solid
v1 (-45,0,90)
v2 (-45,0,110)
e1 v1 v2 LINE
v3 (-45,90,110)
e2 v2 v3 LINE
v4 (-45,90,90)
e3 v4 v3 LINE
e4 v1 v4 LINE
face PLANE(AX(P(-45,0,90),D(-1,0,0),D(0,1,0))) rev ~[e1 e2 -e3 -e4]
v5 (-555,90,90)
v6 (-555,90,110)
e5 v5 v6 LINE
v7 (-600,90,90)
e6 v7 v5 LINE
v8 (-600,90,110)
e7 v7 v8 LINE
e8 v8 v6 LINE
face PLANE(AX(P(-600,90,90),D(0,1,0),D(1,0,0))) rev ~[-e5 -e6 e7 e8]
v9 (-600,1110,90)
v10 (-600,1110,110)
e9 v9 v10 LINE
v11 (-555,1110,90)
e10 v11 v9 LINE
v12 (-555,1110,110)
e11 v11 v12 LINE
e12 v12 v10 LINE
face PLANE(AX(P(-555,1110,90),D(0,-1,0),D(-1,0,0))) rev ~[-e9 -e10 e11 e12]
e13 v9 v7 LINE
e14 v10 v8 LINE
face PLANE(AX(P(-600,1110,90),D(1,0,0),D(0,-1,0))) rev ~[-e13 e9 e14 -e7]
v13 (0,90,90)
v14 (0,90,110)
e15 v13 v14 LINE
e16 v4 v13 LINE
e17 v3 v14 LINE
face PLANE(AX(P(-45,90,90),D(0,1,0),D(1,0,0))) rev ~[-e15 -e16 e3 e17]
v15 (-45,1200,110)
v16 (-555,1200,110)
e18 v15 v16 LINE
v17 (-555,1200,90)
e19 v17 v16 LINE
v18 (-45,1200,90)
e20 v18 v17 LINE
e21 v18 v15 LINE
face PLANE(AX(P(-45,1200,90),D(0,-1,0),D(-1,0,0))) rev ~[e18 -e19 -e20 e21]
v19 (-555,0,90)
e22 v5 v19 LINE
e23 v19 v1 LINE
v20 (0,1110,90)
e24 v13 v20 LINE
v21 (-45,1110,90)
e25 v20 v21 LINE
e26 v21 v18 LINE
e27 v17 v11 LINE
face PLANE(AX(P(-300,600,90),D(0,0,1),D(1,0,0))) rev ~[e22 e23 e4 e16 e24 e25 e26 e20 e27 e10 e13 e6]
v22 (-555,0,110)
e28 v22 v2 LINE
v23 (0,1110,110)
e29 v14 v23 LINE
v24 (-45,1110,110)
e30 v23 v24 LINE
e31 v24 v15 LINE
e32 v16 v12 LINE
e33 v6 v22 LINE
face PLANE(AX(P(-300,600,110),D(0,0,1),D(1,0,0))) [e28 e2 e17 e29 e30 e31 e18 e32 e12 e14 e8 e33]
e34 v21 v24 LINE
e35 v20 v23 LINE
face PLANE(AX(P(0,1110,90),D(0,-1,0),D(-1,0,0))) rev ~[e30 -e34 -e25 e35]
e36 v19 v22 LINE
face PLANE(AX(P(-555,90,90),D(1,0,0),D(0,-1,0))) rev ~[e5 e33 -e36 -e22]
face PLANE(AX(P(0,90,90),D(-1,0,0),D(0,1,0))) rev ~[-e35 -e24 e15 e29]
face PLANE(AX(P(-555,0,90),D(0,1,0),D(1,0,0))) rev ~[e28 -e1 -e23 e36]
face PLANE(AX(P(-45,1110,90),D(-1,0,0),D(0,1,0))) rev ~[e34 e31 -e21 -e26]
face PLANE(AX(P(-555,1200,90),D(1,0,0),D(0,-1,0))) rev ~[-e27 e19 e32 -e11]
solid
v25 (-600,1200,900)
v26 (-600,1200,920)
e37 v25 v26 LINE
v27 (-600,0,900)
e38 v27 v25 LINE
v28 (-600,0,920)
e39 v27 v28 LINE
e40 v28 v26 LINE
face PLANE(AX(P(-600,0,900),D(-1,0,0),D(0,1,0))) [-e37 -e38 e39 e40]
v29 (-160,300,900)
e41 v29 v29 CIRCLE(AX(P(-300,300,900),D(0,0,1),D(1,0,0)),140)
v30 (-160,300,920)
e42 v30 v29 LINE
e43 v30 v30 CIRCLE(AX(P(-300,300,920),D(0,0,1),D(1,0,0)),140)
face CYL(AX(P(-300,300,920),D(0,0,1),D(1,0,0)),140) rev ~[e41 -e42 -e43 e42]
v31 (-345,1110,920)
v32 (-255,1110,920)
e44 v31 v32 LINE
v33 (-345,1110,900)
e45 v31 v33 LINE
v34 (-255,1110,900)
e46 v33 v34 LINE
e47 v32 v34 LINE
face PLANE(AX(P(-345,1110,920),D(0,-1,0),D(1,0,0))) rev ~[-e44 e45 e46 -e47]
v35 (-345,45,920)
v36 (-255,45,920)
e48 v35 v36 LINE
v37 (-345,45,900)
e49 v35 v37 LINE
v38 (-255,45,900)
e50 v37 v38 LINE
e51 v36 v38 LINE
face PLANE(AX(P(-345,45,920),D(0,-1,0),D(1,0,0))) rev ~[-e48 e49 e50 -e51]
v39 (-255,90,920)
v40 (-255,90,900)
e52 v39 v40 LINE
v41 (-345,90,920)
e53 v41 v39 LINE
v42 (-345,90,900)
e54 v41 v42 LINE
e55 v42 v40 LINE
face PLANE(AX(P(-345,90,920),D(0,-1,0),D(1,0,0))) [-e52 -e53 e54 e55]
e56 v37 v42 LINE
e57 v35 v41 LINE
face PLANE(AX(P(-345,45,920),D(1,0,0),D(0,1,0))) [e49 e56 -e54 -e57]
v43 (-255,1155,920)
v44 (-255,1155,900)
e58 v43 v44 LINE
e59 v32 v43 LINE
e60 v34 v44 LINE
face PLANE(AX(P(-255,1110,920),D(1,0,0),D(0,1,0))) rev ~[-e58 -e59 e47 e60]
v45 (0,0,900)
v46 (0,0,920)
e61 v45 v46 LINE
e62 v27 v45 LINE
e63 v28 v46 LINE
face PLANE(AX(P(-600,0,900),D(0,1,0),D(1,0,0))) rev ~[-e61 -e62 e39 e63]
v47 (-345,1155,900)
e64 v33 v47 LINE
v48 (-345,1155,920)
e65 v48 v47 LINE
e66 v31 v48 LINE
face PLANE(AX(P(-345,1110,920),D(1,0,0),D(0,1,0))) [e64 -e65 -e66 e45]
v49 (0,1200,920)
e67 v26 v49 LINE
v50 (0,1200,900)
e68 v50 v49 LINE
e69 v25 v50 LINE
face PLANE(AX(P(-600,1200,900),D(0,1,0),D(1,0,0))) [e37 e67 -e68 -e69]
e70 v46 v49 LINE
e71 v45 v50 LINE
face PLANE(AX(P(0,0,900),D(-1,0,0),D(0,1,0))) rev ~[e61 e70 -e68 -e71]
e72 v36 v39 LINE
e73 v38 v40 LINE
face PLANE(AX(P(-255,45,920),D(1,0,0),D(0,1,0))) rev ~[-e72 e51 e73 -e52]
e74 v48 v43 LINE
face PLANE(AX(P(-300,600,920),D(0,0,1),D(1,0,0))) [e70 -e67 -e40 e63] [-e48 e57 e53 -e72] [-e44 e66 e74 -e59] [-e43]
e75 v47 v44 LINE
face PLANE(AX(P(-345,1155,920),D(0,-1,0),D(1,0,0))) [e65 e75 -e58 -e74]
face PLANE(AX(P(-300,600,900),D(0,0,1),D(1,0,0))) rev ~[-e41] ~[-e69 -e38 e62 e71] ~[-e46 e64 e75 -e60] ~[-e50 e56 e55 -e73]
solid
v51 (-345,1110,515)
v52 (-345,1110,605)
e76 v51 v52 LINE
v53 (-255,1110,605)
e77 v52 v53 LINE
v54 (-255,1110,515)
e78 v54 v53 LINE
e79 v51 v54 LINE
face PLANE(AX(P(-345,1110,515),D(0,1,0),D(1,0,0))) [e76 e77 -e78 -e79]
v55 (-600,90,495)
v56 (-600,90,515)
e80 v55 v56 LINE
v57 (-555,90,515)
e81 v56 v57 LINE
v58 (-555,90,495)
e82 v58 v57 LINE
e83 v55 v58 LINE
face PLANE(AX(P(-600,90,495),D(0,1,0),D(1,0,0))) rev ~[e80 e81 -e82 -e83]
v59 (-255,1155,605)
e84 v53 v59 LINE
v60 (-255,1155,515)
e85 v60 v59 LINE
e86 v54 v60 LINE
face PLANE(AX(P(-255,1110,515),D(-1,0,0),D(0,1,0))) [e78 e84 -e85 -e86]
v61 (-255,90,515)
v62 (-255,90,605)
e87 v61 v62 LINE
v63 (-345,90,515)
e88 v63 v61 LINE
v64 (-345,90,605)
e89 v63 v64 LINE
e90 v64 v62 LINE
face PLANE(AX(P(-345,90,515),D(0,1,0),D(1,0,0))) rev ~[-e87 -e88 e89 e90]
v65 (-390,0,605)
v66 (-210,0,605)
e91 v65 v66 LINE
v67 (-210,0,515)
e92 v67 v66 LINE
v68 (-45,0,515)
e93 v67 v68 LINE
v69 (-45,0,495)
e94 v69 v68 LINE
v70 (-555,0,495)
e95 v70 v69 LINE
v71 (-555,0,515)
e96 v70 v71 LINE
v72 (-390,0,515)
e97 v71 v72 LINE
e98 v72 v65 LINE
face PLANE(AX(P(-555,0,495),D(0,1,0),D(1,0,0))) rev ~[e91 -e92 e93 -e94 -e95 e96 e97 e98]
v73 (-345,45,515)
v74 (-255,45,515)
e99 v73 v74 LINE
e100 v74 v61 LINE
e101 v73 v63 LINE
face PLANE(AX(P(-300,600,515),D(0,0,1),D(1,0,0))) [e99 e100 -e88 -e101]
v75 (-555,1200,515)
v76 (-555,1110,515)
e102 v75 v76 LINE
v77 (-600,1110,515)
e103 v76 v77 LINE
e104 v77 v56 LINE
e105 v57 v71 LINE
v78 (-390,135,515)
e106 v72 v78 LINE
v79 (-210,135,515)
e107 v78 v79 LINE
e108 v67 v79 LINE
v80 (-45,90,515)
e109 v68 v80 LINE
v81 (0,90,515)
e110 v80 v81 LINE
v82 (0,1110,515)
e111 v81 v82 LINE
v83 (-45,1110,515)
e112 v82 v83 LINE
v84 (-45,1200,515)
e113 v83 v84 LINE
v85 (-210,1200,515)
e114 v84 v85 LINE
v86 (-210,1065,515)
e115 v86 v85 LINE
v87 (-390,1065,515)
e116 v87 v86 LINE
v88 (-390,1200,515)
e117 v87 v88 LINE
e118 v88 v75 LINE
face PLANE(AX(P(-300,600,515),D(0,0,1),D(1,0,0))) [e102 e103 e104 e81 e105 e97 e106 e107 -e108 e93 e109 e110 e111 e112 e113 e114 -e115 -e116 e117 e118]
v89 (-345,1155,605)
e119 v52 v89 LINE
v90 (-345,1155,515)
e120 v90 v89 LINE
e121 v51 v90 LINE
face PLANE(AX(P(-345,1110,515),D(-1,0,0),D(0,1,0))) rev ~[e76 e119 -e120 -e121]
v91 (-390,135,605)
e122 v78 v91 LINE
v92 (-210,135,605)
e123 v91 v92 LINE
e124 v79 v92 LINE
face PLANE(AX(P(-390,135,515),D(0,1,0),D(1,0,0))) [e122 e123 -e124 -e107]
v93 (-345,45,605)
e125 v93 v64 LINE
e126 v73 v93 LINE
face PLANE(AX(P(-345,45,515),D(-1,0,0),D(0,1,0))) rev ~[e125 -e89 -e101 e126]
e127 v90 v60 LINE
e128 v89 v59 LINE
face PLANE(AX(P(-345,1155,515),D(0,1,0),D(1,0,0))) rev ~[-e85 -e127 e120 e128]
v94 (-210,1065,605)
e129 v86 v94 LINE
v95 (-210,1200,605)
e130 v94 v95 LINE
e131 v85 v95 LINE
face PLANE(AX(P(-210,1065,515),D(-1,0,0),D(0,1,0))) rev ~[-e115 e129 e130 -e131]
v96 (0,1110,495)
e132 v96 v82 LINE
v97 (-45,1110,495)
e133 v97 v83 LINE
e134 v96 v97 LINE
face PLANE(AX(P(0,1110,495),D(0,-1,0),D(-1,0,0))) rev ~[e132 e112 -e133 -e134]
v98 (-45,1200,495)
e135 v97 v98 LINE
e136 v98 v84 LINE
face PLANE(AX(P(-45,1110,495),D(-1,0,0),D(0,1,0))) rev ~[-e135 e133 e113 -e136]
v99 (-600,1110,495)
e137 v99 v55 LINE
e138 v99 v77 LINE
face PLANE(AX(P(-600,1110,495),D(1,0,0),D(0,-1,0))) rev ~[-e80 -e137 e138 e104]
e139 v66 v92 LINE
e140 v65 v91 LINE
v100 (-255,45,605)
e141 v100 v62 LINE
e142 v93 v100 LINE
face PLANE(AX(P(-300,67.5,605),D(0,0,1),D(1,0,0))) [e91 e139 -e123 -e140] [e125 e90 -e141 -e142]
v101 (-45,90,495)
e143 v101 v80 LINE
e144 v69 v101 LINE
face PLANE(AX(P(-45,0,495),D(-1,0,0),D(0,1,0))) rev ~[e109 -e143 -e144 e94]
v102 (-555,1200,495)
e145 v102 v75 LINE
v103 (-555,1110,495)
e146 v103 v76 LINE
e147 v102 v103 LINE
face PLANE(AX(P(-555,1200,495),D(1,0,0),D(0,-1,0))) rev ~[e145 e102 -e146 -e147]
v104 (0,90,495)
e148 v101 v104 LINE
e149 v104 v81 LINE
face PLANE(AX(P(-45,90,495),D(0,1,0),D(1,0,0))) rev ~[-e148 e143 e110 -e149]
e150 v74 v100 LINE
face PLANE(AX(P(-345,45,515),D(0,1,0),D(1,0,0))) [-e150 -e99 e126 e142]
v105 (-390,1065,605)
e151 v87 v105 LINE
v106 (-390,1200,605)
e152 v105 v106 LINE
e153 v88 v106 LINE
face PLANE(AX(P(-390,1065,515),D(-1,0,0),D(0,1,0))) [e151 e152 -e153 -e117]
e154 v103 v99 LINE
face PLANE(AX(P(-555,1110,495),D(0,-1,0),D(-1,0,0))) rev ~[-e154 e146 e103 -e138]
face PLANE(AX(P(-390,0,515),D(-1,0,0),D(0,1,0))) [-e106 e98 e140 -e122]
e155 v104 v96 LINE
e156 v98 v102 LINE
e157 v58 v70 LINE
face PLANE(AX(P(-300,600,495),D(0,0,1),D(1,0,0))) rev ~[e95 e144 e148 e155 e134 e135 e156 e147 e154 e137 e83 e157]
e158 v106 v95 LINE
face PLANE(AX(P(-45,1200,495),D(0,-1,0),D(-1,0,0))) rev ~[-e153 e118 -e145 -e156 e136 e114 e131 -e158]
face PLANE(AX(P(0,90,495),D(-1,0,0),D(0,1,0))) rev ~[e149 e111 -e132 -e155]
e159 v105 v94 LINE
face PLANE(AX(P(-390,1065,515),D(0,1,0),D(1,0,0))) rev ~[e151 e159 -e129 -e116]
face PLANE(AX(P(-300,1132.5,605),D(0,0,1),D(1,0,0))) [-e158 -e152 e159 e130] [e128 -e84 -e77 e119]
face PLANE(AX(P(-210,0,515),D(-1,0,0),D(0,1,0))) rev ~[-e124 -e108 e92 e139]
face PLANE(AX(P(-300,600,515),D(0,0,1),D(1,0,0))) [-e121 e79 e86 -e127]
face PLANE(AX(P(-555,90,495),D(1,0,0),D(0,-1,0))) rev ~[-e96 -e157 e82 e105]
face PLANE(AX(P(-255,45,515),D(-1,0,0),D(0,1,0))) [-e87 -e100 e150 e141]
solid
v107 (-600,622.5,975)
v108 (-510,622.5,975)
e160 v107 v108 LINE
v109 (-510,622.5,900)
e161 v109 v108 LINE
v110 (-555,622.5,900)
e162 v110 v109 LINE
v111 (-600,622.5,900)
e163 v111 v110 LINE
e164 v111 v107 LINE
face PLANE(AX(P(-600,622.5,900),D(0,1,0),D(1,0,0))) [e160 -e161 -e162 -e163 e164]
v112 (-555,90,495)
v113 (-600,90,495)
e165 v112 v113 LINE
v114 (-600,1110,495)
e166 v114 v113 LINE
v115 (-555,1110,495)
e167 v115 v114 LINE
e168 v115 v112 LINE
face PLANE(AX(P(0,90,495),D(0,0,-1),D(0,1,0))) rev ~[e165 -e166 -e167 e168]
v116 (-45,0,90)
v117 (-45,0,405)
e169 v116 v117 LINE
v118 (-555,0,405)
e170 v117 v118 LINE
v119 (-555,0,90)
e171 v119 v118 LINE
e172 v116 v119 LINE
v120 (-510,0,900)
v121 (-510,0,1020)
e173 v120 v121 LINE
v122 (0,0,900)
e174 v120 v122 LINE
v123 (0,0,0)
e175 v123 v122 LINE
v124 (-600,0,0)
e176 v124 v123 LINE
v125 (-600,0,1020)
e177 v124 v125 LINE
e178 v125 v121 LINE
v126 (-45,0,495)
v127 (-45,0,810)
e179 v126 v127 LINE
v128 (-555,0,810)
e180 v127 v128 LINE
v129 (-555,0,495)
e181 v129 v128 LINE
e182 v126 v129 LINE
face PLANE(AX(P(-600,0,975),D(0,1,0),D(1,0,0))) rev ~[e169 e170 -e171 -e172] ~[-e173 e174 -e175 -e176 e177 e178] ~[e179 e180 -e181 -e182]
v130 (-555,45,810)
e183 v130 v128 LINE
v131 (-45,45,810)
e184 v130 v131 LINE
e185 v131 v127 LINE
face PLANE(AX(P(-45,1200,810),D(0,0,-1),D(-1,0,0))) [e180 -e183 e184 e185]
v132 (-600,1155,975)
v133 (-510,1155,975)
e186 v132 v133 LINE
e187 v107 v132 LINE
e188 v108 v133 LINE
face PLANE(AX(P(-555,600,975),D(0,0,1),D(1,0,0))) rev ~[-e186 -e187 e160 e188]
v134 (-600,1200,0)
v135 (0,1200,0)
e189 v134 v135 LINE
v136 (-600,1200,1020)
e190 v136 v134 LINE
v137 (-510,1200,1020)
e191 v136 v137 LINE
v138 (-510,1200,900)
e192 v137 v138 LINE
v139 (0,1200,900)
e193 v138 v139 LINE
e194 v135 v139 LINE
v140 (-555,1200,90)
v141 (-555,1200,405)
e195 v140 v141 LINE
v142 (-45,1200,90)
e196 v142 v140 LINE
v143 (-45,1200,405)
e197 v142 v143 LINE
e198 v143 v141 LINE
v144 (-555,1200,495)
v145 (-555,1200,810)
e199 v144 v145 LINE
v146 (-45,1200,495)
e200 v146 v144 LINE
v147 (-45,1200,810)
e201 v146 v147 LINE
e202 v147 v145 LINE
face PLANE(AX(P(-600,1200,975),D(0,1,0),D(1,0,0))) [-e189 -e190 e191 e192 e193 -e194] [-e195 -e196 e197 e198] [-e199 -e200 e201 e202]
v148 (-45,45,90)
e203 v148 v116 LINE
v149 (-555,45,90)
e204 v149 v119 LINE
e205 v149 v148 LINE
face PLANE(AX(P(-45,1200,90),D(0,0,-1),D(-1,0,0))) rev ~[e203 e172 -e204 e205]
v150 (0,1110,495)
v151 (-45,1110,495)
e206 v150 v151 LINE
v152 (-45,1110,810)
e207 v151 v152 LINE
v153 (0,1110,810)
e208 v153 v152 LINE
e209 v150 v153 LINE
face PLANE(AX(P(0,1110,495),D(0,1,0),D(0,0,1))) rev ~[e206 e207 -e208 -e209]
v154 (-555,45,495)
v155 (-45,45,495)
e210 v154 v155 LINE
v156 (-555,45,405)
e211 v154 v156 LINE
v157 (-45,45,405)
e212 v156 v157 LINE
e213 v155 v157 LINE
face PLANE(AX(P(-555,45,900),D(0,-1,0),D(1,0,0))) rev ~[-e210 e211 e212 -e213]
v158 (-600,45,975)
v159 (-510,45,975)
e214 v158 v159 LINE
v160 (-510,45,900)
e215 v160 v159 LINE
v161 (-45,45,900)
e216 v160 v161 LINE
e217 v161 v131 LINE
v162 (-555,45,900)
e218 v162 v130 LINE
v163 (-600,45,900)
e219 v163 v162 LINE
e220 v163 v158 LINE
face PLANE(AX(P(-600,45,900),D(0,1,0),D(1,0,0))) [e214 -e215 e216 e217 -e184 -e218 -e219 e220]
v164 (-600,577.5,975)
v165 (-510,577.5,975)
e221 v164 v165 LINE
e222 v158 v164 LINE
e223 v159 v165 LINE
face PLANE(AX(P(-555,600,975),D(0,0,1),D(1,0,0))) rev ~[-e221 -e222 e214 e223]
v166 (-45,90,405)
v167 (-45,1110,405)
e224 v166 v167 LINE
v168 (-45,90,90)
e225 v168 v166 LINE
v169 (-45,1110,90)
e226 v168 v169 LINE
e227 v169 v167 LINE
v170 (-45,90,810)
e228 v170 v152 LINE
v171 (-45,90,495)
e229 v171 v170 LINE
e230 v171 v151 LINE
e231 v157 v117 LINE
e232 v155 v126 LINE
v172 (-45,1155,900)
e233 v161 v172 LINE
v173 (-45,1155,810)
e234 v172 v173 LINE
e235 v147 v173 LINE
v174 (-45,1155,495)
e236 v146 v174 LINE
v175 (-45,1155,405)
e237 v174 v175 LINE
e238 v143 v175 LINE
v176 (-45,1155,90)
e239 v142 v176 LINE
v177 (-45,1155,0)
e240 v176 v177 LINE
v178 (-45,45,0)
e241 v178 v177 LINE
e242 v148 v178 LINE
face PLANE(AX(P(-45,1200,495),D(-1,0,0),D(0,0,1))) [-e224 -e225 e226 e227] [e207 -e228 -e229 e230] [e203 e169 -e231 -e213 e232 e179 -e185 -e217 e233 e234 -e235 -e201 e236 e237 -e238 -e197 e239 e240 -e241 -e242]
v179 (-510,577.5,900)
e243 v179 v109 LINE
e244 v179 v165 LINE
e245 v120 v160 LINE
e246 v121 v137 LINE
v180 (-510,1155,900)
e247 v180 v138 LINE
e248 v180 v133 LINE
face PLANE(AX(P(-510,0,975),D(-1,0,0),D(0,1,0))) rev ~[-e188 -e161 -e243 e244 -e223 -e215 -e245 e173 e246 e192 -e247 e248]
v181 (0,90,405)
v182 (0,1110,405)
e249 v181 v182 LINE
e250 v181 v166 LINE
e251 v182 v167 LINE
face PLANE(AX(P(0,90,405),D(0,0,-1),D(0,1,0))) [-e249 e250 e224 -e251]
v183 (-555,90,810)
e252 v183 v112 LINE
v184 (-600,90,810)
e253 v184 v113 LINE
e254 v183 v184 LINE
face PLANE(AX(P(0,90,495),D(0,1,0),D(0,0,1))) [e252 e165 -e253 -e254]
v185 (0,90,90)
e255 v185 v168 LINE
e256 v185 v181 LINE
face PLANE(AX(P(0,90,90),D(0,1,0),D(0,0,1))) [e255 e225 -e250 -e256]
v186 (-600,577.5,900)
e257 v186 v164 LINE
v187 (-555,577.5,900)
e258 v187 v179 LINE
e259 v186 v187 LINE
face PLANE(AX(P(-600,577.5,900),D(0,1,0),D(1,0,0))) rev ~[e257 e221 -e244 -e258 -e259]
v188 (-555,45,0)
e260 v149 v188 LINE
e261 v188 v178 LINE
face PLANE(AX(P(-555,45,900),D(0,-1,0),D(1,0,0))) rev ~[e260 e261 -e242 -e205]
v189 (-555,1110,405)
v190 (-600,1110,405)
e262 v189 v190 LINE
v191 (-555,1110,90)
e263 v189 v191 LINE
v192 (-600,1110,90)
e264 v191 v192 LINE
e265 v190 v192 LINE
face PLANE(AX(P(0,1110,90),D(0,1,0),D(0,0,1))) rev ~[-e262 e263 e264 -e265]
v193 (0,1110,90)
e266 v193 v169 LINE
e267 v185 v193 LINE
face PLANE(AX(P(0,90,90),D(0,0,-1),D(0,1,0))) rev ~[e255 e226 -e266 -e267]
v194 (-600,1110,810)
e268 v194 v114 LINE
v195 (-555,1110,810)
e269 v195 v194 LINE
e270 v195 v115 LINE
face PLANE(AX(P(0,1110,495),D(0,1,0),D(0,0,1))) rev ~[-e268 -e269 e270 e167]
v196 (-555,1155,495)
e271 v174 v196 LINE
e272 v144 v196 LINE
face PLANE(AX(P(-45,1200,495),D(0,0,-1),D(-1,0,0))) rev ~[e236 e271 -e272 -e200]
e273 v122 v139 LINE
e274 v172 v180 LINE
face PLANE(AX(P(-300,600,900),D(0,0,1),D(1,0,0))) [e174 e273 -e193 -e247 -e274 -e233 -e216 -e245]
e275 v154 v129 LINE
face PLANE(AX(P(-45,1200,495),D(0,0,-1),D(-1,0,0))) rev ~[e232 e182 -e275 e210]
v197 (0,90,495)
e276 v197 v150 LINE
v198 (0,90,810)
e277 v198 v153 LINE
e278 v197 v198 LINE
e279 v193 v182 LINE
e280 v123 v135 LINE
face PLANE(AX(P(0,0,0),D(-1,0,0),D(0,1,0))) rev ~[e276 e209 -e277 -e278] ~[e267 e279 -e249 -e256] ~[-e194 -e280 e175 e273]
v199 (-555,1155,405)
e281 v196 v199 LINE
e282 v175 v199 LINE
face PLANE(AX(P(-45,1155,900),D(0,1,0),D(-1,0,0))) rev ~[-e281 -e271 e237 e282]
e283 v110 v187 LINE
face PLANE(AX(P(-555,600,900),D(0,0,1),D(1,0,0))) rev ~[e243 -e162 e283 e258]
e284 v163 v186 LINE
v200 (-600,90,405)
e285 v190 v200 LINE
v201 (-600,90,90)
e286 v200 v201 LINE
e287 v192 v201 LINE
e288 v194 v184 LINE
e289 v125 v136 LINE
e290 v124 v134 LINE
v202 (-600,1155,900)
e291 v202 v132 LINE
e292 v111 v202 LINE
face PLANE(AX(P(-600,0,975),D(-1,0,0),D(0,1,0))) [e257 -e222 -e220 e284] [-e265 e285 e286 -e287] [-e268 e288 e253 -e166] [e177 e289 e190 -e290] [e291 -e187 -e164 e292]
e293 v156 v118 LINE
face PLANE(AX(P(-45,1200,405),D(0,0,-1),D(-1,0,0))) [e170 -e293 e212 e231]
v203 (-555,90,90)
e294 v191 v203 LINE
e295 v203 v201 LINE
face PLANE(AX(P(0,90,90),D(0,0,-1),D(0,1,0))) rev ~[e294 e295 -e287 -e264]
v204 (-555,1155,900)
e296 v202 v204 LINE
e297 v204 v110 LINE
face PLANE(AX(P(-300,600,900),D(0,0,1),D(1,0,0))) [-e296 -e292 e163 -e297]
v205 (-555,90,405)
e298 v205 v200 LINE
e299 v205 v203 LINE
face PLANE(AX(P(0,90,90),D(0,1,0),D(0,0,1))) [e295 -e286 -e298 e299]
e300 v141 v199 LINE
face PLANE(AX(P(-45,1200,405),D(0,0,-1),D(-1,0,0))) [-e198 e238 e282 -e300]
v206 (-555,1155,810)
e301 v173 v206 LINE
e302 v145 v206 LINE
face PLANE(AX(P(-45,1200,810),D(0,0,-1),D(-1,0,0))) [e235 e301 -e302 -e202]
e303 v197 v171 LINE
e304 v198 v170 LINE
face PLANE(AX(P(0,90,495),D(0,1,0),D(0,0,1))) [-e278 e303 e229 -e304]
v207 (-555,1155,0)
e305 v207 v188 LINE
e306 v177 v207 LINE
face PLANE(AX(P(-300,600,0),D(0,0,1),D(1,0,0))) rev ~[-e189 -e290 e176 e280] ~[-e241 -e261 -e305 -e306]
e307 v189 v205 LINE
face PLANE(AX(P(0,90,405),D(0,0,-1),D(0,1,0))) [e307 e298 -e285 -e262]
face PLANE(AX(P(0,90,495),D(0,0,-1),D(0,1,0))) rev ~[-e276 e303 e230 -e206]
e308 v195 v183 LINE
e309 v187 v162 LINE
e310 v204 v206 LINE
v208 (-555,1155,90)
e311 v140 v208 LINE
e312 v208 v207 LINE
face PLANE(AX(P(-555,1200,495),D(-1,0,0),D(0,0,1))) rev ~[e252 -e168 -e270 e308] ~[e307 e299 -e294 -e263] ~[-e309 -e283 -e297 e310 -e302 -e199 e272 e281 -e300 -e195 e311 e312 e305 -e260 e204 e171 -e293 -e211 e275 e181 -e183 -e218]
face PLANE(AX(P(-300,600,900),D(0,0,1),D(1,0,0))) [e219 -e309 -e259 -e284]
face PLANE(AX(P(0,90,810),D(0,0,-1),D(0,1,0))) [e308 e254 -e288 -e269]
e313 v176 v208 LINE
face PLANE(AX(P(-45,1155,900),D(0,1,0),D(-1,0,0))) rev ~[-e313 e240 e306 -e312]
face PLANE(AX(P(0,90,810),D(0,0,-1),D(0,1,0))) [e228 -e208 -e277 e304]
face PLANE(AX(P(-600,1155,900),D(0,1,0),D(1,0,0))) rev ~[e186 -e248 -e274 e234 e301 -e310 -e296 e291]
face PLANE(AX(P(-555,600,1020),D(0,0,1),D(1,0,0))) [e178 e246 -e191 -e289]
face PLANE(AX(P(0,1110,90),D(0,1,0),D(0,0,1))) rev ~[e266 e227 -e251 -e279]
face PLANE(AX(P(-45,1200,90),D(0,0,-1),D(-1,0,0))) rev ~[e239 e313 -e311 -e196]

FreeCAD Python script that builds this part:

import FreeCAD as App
import Part
import Sketcher
from FreeCAD import Vector
Q = App.Units.Quantity

doc = App.newDocument("Part")
body = doc.addObject("PartDesign::Body", "Body")

sketch1 = doc.addObject("Sketcher::SketchObject", "Sketch")
body.addObject(sketch1)
sketch1.AttachmentSupport = (doc.XY_Plane, [""])
sketch1.MapMode = "FlatFace"
sketch1.addGeometry(Part.LineSegment(Vector(-600, 1200, 0), Vector(-600, 0, 0)), False)
sketch1.addGeometry(Part.LineSegment(Vector(-600, 0, 0), Vector(0, 0, 0)), False)
sketch1.addGeometry(Part.LineSegment(Vector(0, 0, 0), Vector(0, 1200, 0)), False)
sketch1.addGeometry(Part.LineSegment(Vector(0, 1200, 0), Vector(-600, 1200, 0)), False)
sketch1.addConstraint(Sketcher.Constraint("Coincident", 0, 2, 1, 1))
sketch1.addConstraint(Sketcher.Constraint("Coincident", 1, 2, 2, 1))
sketch1.addConstraint(Sketcher.Constraint("Coincident", 2, 2, 3, 1))
sketch1.addConstraint(Sketcher.Constraint("Coincident", 3, 2, 0, 1))
sketch1.addConstraint(Sketcher.Constraint("Vertical", 0))
sketch1.addConstraint(Sketcher.Constraint("Horizontal", 1))
sketch1.addConstraint(Sketcher.Constraint("Vertical", 2))
sketch1.addConstraint(Sketcher.Constraint("Horizontal", 3))
sketch1.addConstraint(Sketcher.Constraint("Coincident", 1, 2, -1, 1))
sketch1.addConstraint(Sketcher.Constraint("DistanceX", 1, 1, 1, 2, Q("600 mm")))
sketch1.addConstraint(Sketcher.Constraint("DistanceY", 0, 2, 0, 1, Q("1200 mm")))
pad1 = doc.addObject("PartDesign::Pad", "Pad")
body.addObject(pad1)
pad1.Profile = sketch1
pad1.Length = 900

sketch2 = doc.addObject("Sketcher::SketchObject", "Sketch001")
body.addObject(sketch2)
sketch2.AttachmentSupport = (doc.XY_Plane, [""])
sketch2.MapMode = "FlatFace"
sketch2.AttachmentOffset = App.Placement(Vector(0, 0, 900), App.Rotation())
sketch2.addGeometry(Part.LineSegment(Vector(-555, 45, 0), Vector(-45, 45, 0)), False)
sketch2.addGeometry(Part.LineSegment(Vector(-45, 45, 0), Vector(-45, 1155, 0)), False)
sketch2.addGeometry(Part.LineSegment(Vector(-45, 1155, 0), Vector(-555, 1155, 0)), False)
sketch2.addGeometry(Part.LineSegment(Vector(-555, 1155, 0), Vector(-555, 45, 0)), False)
sketch2.addConstraint(Sketcher.Constraint("Coincident", 0, 2, 1, 1))
sketch2.addConstraint(Sketcher.Constraint("Coincident", 1, 2, 2, 1))
sketch2.addConstraint(Sketcher.Constraint("Coincident", 2, 2, 3, 1))
sketch2.addConstraint(Sketcher.Constraint("Coincident", 3, 2, 0, 1))
sketch2.addConstraint(Sketcher.Constraint("Horizontal", 0))
sketch2.addConstraint(Sketcher.Constraint("Vertical", 1))
sketch2.addConstraint(Sketcher.Constraint("Horizontal", 2))
sketch2.addConstraint(Sketcher.Constraint("Vertical", 3))
sketch2.addConstraint(Sketcher.Constraint("DistanceX", 0, 1, 0, 2, Q("510 mm")))
sketch2.addConstraint(Sketcher.Constraint("DistanceY", 1, 1, 1, 2, Q("1110 mm")))
sketch2.addConstraint(Sketcher.Constraint("DistanceX", 0, 2, -1, 1, Q("45 mm")))
sketch2.addConstraint(Sketcher.Constraint("DistanceY", -1, 1, 0, 2, Q("45 mm")))
pocket1 = doc.addObject("PartDesign::Pocket", "Pocket")
body.addObject(pocket1)
pocket1.Profile = sketch2
pocket1.Type = "ThroughAll"

sketch3 = doc.addObject("Sketcher::SketchObject", "Sketch002")
body.addObject(sketch3)
sketch3.AttachmentSupport = (doc.YZ_Plane, [""])
sketch3.MapMode = "FlatFace"
sketch3.addGeometry(Part.LineSegment(Vector(90, 810, 0), Vector(90, 495, 0)), False)
sketch3.addGeometry(Part.LineSegment(Vector(90, 495, 0), Vector(1110, 495, 0)), False)
sketch3.addGeometry(Part.LineSegment(Vector(1110, 495, 0), Vector(1110, 810, 0)), False)
sketch3.addGeometry(Part.LineSegment(Vector(1110, 810, 0), Vector(90, 810, 0)), False)
sketch3.addGeometry(Part.LineSegment(Vector(90, 405, 0), Vector(90, 90, 0)), False)
sketch3.addGeometry(Part.LineSegment(Vector(90, 90, 0), Vector(1110, 90, 0)), False)
sketch3.addGeometry(Part.LineSegment(Vector(1110, 90, 0), Vector(1110, 405, 0)), False)
sketch3.addGeometry(Part.LineSegment(Vector(1110, 405, 0), Vector(90, 405, 0)), False)
sketch3.addConstraint(Sketcher.Constraint("Coincident", 0, 2, 1, 1))
sketch3.addConstraint(Sketcher.Constraint("Coincident", 1, 2, 2, 1))
sketch3.addConstraint(Sketcher.Constraint("Coincident", 2, 2, 3, 1))
sketch3.addConstraint(Sketcher.Constraint("Coincident", 3, 2, 0, 1))
sketch3.addConstraint(Sketcher.Constraint("Coincident", 4, 2, 5, 1))
sketch3.addConstraint(Sketcher.Constraint("Coincident", 5, 2, 6, 1))
sketch3.addConstraint(Sketcher.Constraint("Coincident", 6, 2, 7, 1))
sketch3.addConstraint(Sketcher.Constraint("Coincident", 7, 2, 4, 1))
sketch3.addConstraint(Sketcher.Constraint("Vertical", 0))
sketch3.addConstraint(Sketcher.Constraint("Horizontal", 1))
sketch3.addConstraint(Sketcher.Constraint("Vertical", 2))
sketch3.addConstraint(Sketcher.Constraint("Horizontal", 3))
sketch3.addConstraint(Sketcher.Constraint("Vertical", 4))
sketch3.addConstraint(Sketcher.Constraint("Horizontal", 5))
sketch3.addConstraint(Sketcher.Constraint("Vertical", 6))
sketch3.addConstraint(Sketcher.Constraint("Horizontal", 7))
sketch3.addConstraint(Sketcher.Constraint("Vertical", 3, 2, 4, 2))
sketch3.addConstraint(Sketcher.Constraint("Vertical", 2, 2, 5, 2))
sketch3.addConstraint(Sketcher.Constraint("Equal", 2, 4))
sketch3.addConstraint(Sketcher.Constraint("DistanceX", 1, 1, 1, 2, Q("1020 mm")))
sketch3.addConstraint(Sketcher.Constraint("DistanceY", 0, 2, 0, 1, Q("315 mm")))
sketch3.addConstraint(Sketcher.Constraint("DistanceX", -1, 1, 0, 2, Q("90 mm")))
sketch3.addConstraint(Sketcher.Constraint("DistanceY", -1, 1, 0, 2, Q("495 mm")))
sketch3.addConstraint(Sketcher.Constraint("DistanceY", -1, 1, 4, 2, Q("90 mm")))
pocket2 = doc.addObject("PartDesign::Pocket", "Pocket001")
body.addObject(pocket2)
pocket2.Profile = sketch3
pocket2.Type = "ThroughAll"

sketch4 = doc.addObject("Sketcher::SketchObject", "Sketch003")
body.addObject(sketch4)
sketch4.AttachmentSupport = (doc.XZ_Plane, [""])
sketch4.MapMode = "FlatFace"
sketch4.AttachmentOffset = App.Placement(Vector(0, 0, -1200), App.Rotation())
sketch4.addGeometry(Part.LineSegment(Vector(-45, 810, 0), Vector(-45, 495, 0)), False)
sketch4.addGeometry(Part.LineSegment(Vector(-45, 495, 0), Vector(-555, 495, 0)), False)
sketch4.addGeometry(Part.LineSegment(Vector(-555, 495, 0), Vector(-555, 810, 0)), False)
sketch4.addGeometry(Part.LineSegment(Vector(-555, 810, 0), Vector(-45, 810, 0)), False)
sketch4.addGeometry(Part.LineSegment(Vector(-45, 405, 0), Vector(-45, 90, 0)), False)
sketch4.addGeometry(Part.LineSegment(Vector(-45, 90, 0), Vector(-555, 90, 0)), False)
sketch4.addGeometry(Part.LineSegment(Vector(-555, 90, 0), Vector(-555, 405, 0)), False)
sketch4.addGeometry(Part.LineSegment(Vector(-555, 405, 0), Vector(-45, 405, 0)), False)
sketch4.addConstraint(Sketcher.Constraint("Coincident", 0, 2, 1, 1))
sketch4.addConstraint(Sketcher.Constraint("Coincident", 1, 2, 2, 1))
sketch4.addConstraint(Sketcher.Constraint("Coincident", 2, 2, 3, 1))
sketch4.addConstraint(Sketcher.Constraint("Coincident", 3, 2, 0, 1))
sketch4.addConstraint(Sketcher.Constraint("Coincident", 4, 2, 5, 1))
sketch4.addConstraint(Sketcher.Constraint("Coincident", 5, 2, 6, 1))
sketch4.addConstraint(Sketcher.Constraint("Coincident", 6, 2, 7, 1))
sketch4.addConstraint(Sketcher.Constraint("Coincident", 7, 2, 4, 1))
sketch4.addConstraint(Sketcher.Constraint("Vertical", 0))
sketch4.addConstraint(Sketcher.Constraint("Horizontal", 1))
sketch4.addConstraint(Sketcher.Constraint("Vertical", 2))
sketch4.addConstraint(Sketcher.Constraint("Horizontal", 3))
sketch4.addConstraint(Sketcher.Constraint("Vertical", 4))
sketch4.addConstraint(Sketcher.Constraint("Horizontal", 5))
sketch4.addConstraint(Sketcher.Constraint("Vertical", 6))
sketch4.addConstraint(Sketcher.Constraint("Horizontal", 7))
sketch4.addConstraint(Sketcher.Constraint("Vertical", 3, 2, 4, 2))
sketch4.addConstraint(Sketcher.Constraint("Vertical", 2, 2, 5, 2))
sketch4.addConstraint(Sketcher.Constraint("Equal", 2, 4))
sketch4.addConstraint(Sketcher.Constraint("DistanceX", 1, 2, 1, 1, Q("510 mm")))
sketch4.addConstraint(Sketcher.Constraint("DistanceY", 0, 2, 0, 1, Q("315 mm")))
sketch4.addConstraint(Sketcher.Constraint("DistanceX", 0, 2, -1, 1, Q("45 mm")))
sketch4.addConstraint(Sketcher.Constraint("DistanceY", -1, 1, 0, 2, Q("495 mm")))
sketch4.addConstraint(Sketcher.Constraint("DistanceY", -1, 1, 4, 2, Q("90 mm")))
pocket3 = doc.addObject("PartDesign::Pocket", "Pocket002")
body.addObject(pocket3)
pocket3.Profile = sketch4
pocket3.Type = "ThroughAll"
pocket3.Reversed = True

sketch5 = doc.addObject("Sketcher::SketchObject", "Sketch004")
body.addObject(sketch5)
sketch5.AttachmentSupport = (doc.XY_Plane, [""])
sketch5.MapMode = "FlatFace"
sketch5.AttachmentOffset = App.Placement(Vector(0, 0, 900), App.Rotation())
sketch5.addGeometry(Part.LineSegment(Vector(-600, 45, 0), Vector(-600, 0, 0)), False)
sketch5.addGeometry(Part.LineSegment(Vector(-600, 0, 0), Vector(-510, 0, 0)), False)
sketch5.addGeometry(Part.LineSegment(Vector(-510, 0, 0), Vector(-510, 45, 0)), False)
sketch5.addGeometry(Part.LineSegment(Vector(-510, 45, 0), Vector(-600, 45, 0)), False)
sketch5.addGeometry(Part.LineSegment(Vector(-600, 1200, 0), Vector(-600, 1155, 0)), False)
sketch5.addGeometry(Part.LineSegment(Vector(-600, 1155, 0), Vector(-510, 1155, 0)), False)
sketch5.addGeometry(Part.LineSegment(Vector(-510, 1155, 0), Vector(-510, 1200, 0)), False)
sketch5.addGeometry(Part.LineSegment(Vector(-510, 1200, 0), Vector(-600, 1200, 0)), False)
sketch5.addGeometry(Part.LineSegment(Vector(-600, 622, 0), Vector(-600, 578, 0)), False)
sketch5.addGeometry(Part.LineSegment(Vector(-600, 578, 0), Vector(-510, 578, 0)), False)
sketch5.addGeometry(Part.LineSegment(Vector(-510, 578, 0), Vector(-510, 622, 0)), False)
sketch5.addGeometry(Part.LineSegment(Vector(-510, 622, 0), Vector(-600, 622, 0)), False)
sketch5.addConstraint(Sketcher.Constraint("Coincident", 0, 2, 1, 1))
sketch5.addConstraint(Sketcher.Constraint("Coincident", 1, 2, 2, 1))
sketch5.addConstraint(Sketcher.Constraint("Coincident", 2, 2, 3, 1))
sketch5.addConstraint(Sketcher.Constraint("Coincident", 3, 2, 0, 1))
sketch5.addConstraint(Sketcher.Constraint("Coincident", 4, 2, 5, 1))
sketch5.addConstraint(Sketcher.Constraint("Coincident", 5, 2, 6, 1))
sketch5.addConstraint(Sketcher.Constraint("Coincident", 6, 2, 7, 1))
sketch5.addConstraint(Sketcher.Constraint("Coincident", 7, 2, 4, 1))
sketch5.addConstraint(Sketcher.Constraint("Coincident", 8, 2, 9, 1))
sketch5.addConstraint(Sketcher.Constraint("Coincident", 9, 2, 10, 1))
sketch5.addConstraint(Sketcher.Constraint("Coincident", 10, 2, 11, 1))
sketch5.addConstraint(Sketcher.Constraint("Coincident", 11, 2, 8, 1))
sketch5.addConstraint(Sketcher.Constraint("Vertical", 0))
sketch5.addConstraint(Sketcher.Constraint("Horizontal", 1))
sketch5.addConstraint(Sketcher.Constraint("Vertical", 2))
sketch5.addConstraint(Sketcher.Constraint("Horizontal", 3))
sketch5.addConstraint(Sketcher.Constraint("Vertical", 4))
sketch5.addConstraint(Sketcher.Constraint("Horizontal", 5))
sketch5.addConstraint(Sketcher.Constraint("Vertical", 6))
sketch5.addConstraint(Sketcher.Constraint("Horizontal", 7))
sketch5.addConstraint(Sketcher.Constraint("Vertical", 8))
sketch5.addConstraint(Sketcher.Constraint("Horizontal", 9))
sketch5.addConstraint(Sketcher.Constraint("Vertical", 10))
sketch5.addConstraint(Sketcher.Constraint("Horizontal", 11))
sketch5.addConstraint(Sketcher.Constraint("PointOnObject", 0, 2, -1))
sketch5.addConstraint(Sketcher.Constraint("Vertical", 3, 2, 4, 2))
sketch5.addConstraint(Sketcher.Constraint("Vertical", 2, 2, 5, 2))
sketch5.addConstraint(Sketcher.Constraint("Vertical", 7, 2, 8, 2))
sketch5.addConstraint(Sketcher.Constraint("Vertical", 6, 2, 9, 2))
sketch5.addConstraint(Sketcher.Constraint("Equal", 2, 4))
sketch5.addConstraint(Sketcher.Constraint("Equal", 6, 8))
sketch5.addConstraint(Sketcher.Constraint("DistanceX", 1, 1, 1, 2, Q("90 mm")))
sketch5.addConstraint(Sketcher.Constraint("DistanceY", 0, 2, 0, 1, Q("45 mm")))
sketch5.addConstraint(Sketcher.Constraint("DistanceX", 0, 2, -1, 1, Q("600 mm")))
sketch5.addConstraint(Sketcher.Constraint("DistanceY", -1, 1, 4, 2, Q("1155 mm")))
sketch5.addConstraint(Sketcher.Constraint("DistanceY", -1, 1, 8, 2, Q("577.5 mm")))
pad2 = doc.addObject("PartDesign::Pad", "Pad001")
body.addObject(pad2)
pad2.Profile = sketch5
pad2.Length = 75

sketch6 = doc.addObject("Sketcher::SketchObject", "Sketch005")
body.addObject(sketch6)
sketch6.AttachmentSupport = (doc.XY_Plane, [""])
sketch6.MapMode = "FlatFace"
sketch6.AttachmentOffset = App.Placement(Vector(0, 0, 975), App.Rotation())
sketch6.addGeometry(Part.LineSegment(Vector(-600, 1200, 0), Vector(-600, 0, 0)), False)
sketch6.addGeometry(Part.LineSegment(Vector(-600, 0, 0), Vector(-510, 0, 0)), False)
sketch6.addGeometry(Part.LineSegment(Vector(-510, 0, 0), Vector(-510, 1200, 0)), False)
sketch6.addGeometry(Part.LineSegment(Vector(-510, 1200, 0), Vector(-600, 1200, 0)), False)
sketch6.addConstraint(Sketcher.Constraint("Coincident", 0, 2, 1, 1))
sketch6.addConstraint(Sketcher.Constraint("Coincident", 1, 2, 2, 1))
sketch6.addConstraint(Sketcher.Constraint("Coincident", 2, 2, 3, 1))
sketch6.addConstraint(Sketcher.Constraint("Coincident", 3, 2, 0, 1))
sketch6.addConstraint(Sketcher.Constraint("Vertical", 0))
sketch6.addConstraint(Sketcher.Constraint("Horizontal", 1))
sketch6.addConstraint(Sketcher.Constraint("Vertical", 2))
sketch6.addConstraint(Sketcher.Constraint("Horizontal", 3))
sketch6.addConstraint(Sketcher.Constraint("PointOnObject", 0, 2, -1))
sketch6.addConstraint(Sketcher.Constraint("DistanceX", 1, 1, 1, 2, Q("90 mm")))
sketch6.addConstraint(Sketcher.Constraint("DistanceY", 0, 2, 0, 1, Q("1200 mm")))
sketch6.addConstraint(Sketcher.Constraint("DistanceX", 0, 2, -1, 1, Q("600 mm")))
pad3 = doc.addObject("PartDesign::Pad", "Pad002")
body.addObject(pad3)
pad3.Profile = sketch6
pad3.Length = 45
body2 = doc.addObject("PartDesign::Body", "Body001")

sketch7 = doc.addObject("Sketcher::SketchObject", "Sketch006")
body2.addObject(sketch7)
sketch7.AttachmentSupport = (doc.getObject("XY_Plane001"), [""])
sketch7.MapMode = "FlatFace"
sketch7.AttachmentOffset = App.Placement(Vector(0, 0, 900), App.Rotation())
sketch7.addGeometry(Part.LineSegment(Vector(-600, 1200, 0), Vector(-600, 0, 0)), False)
sketch7.addGeometry(Part.LineSegment(Vector(-600, 0, 0), Vector(0, 0, 0)), False)
sketch7.addGeometry(Part.LineSegment(Vector(0, 0, 0), Vector(0, 1200, 0)), False)
sketch7.addGeometry(Part.LineSegment(Vector(0, 1200, 0), Vector(-600, 1200, 0)), False)
sketch7.addConstraint(Sketcher.Constraint("Coincident", 0, 2, 1, 1))
sketch7.addConstraint(Sketcher.Constraint("Coincident", 1, 2, 2, 1))
sketch7.addConstraint(Sketcher.Constraint("Coincident", 2, 2, 3, 1))
sketch7.addConstraint(Sketcher.Constraint("Coincident", 3, 2, 0, 1))
sketch7.addConstraint(Sketcher.Constraint("Vertical", 0))
sketch7.addConstraint(Sketcher.Constraint("Horizontal", 1))
sketch7.addConstraint(Sketcher.Constraint("Vertical", 2))
sketch7.addConstraint(Sketcher.Constraint("Horizontal", 3))
sketch7.addConstraint(Sketcher.Constraint("Coincident", 1, 2, -1, 1))
sketch7.addConstraint(Sketcher.Constraint("DistanceX", 1, 1, 1, 2, Q("600 mm")))
sketch7.addConstraint(Sketcher.Constraint("DistanceY", 0, 2, 0, 1, Q("1200 mm")))
pad4 = doc.addObject("PartDesign::Pad", "Pad003")
body2.addObject(pad4)
pad4.Profile = sketch7
pad4.Length = 20

sketch8 = doc.addObject("Sketcher::SketchObject", "Sketch007")
body2.addObject(sketch8)
sketch8.AttachmentSupport = (doc.getObject("XY_Plane001"), [""])
sketch8.MapMode = "FlatFace"
sketch8.AttachmentOffset = App.Placement(Vector(0, 0, 920), App.Rotation())
sketch8.addGeometry(Part.Circle(Vector(-300, 300, 0), Vector(0, 0, 1), 140), False)
sketch8.addConstraint(Sketcher.Constraint("Diameter", 0, Q("280 mm")))
sketch8.addConstraint(Sketcher.Constraint("DistanceX", 0, 3, -1, 1, Q("300 mm")))
sketch8.addConstraint(Sketcher.Constraint("DistanceY", -1, 1, 0, 3, Q("300 mm")))
pocket4 = doc.addObject("PartDesign::Pocket", "Pocket003")
body2.addObject(pocket4)
pocket4.Profile = sketch8
pocket4.Type = "ThroughAll"

sketch9 = doc.addObject("Sketcher::SketchObject", "Sketch008")
body2.addObject(sketch9)
sketch9.AttachmentSupport = (doc.getObject("XY_Plane001"), [""])
sketch9.MapMode = "FlatFace"
sketch9.AttachmentOffset = App.Placement(Vector(0, 0, 920), App.Rotation())
sketch9.addGeometry(Part.LineSegment(Vector(-345, 90, 0), Vector(-345, 45, 0)), False)
sketch9.addGeometry(Part.LineSegment(Vector(-345, 45, 0), Vector(-255, 45, 0)), False)
sketch9.addGeometry(Part.LineSegment(Vector(-255, 45, 0), Vector(-255, 90, 0)), False)
sketch9.addGeometry(Part.LineSegment(Vector(-255, 90, 0), Vector(-345, 90, 0)), False)
sketch9.addGeometry(Part.LineSegment(Vector(-345, 1155, 0), Vector(-345, 1110, 0)), False)
sketch9.addGeometry(Part.LineSegment(Vector(-345, 1110, 0), Vector(-255, 1110, 0)), False)
sketch9.addGeometry(Part.LineSegment(Vector(-255, 1110, 0), Vector(-255, 1155, 0)), False)
sketch9.addGeometry(Part.LineSegment(Vector(-255, 1155, 0), Vector(-345, 1155, 0)), False)
sketch9.addConstraint(Sketcher.Constraint("Coincident", 0, 2, 1, 1))
sketch9.addConstraint(Sketcher.Constraint("Coincident", 1, 2, 2, 1))
sketch9.addConstraint(Sketcher.Constraint("Coincident", 2, 2, 3, 1))
sketch9.addConstraint(Sketcher.Constraint("Coincident", 3, 2, 0, 1))
sketch9.addConstraint(Sketcher.Constraint("Coincident", 4, 2, 5, 1))
sketch9.addConstraint(Sketcher.Constraint("Coincident", 5, 2, 6, 1))
sketch9.addConstraint(Sketcher.Constraint("Coincident", 6, 2, 7, 1))
sketch9.addConstraint(Sketcher.Constraint("Coincident", 7, 2, 4, 1))
sketch9.addConstraint(Sketcher.Constraint("Vertical", 0))
sketch9.addConstraint(Sketcher.Constraint("Horizontal", 1))
sketch9.addConstraint(Sketcher.Constraint("Vertical", 2))
sketch9.addConstraint(Sketcher.Constraint("Horizontal", 3))
sketch9.addConstraint(Sketcher.Constraint("Vertical", 4))
sketch9.addConstraint(Sketcher.Constraint("Horizontal", 5))
sketch9.addConstraint(Sketcher.Constraint("Vertical", 6))
sketch9.addConstraint(Sketcher.Constraint("Horizontal", 7))
sketch9.addConstraint(Sketcher.Constraint("Vertical", 3, 2, 4, 2))
sketch9.addConstraint(Sketcher.Constraint("Vertical", 2, 2, 5, 2))
sketch9.addConstraint(Sketcher.Constraint("Equal", 2, 4))
sketch9.addConstraint(Sketcher.Constraint("DistanceX", 1, 1, 1, 2, Q("90 mm")))
sketch9.addConstraint(Sketcher.Constraint("DistanceY", 0, 2, 0, 1, Q("45 mm")))
sketch9.addConstraint(Sketcher.Constraint("DistanceX", 0, 2, -1, 1, Q("345 mm")))
sketch9.addConstraint(Sketcher.Constraint("DistanceY", -1, 1, 0, 2, Q("45 mm")))
sketch9.addConstraint(Sketcher.Constraint("DistanceY", -1, 1, 4, 2, Q("1110 mm")))
pocket5 = doc.addObject("PartDesign::Pocket", "Pocket004")
body2.addObject(pocket5)
pocket5.Profile = sketch9
pocket5.Type = "ThroughAll"
body3 = doc.addObject("PartDesign::Body", "Body002")

sketch10 = doc.addObject("Sketcher::SketchObject", "Sketch009")
body3.addObject(sketch10)
sketch10.AttachmentSupport = (doc.getObject("XY_Plane002"), [""])
sketch10.MapMode = "FlatFace"
sketch10.AttachmentOffset = App.Placement(Vector(0, 0, 495), App.Rotation())
sketch10.addGeometry(Part.LineSegment(Vector(-45, 90, 0), Vector(0, 90, 0)), False)
sketch10.addGeometry(Part.LineSegment(Vector(0, 90, 0), Vector(0, 1110, 0)), False)
sketch10.addGeometry(Part.LineSegment(Vector(0, 1110, 0), Vector(-45, 1110, 0)), False)
sketch10.addGeometry(Part.LineSegment(Vector(-45, 1110, 0), Vector(-45, 1200, 0)), False)
sketch10.addGeometry(Part.LineSegment(Vector(-45, 1200, 0), Vector(-555, 1200, 0)), False)
sketch10.addGeometry(Part.LineSegment(Vector(-555, 1200, 0), Vector(-555, 1110, 0)), False)
sketch10.addGeometry(Part.LineSegment(Vector(-555, 1110, 0), Vector(-600, 1110, 0)), False)
sketch10.addGeometry(Part.LineSegment(Vector(-600, 1110, 0), Vector(-600, 90, 0)), False)
sketch10.addGeometry(Part.LineSegment(Vector(-600, 90, 0), Vector(-555, 90, 0)), False)
sketch10.addGeometry(Part.LineSegment(Vector(-555, 90, 0), Vector(-555, 0, 0)), False)
sketch10.addGeometry(Part.LineSegment(Vector(-555, 0, 0), Vector(-45, 0, 0)), False)
sketch10.addGeometry(Part.LineSegment(Vector(-45, 0, 0), Vector(-45, 90, 0)), False)
sketch10.addConstraint(Sketcher.Constraint("Coincident", 0, 2, 1, 1))
sketch10.addConstraint(Sketcher.Constraint("Coincident", 1, 2, 2, 1))
sketch10.addConstraint(Sketcher.Constraint("Coincident", 2, 2, 3, 1))
sketch10.addConstraint(Sketcher.Constraint("Coincident", 3, 2, 4, 1))
sketch10.addConstraint(Sketcher.Constraint("Coincident", 4, 2, 5, 1))
sketch10.addConstraint(Sketcher.Constraint("Coincident", 5, 2, 6, 1))
sketch10.addConstraint(Sketcher.Constraint("Coincident", 6, 2, 7, 1))
sketch10.addConstraint(Sketcher.Constraint("Coincident", 7, 2, 8, 1))
sketch10.addConstraint(Sketcher.Constraint("Coincident", 8, 2, 9, 1))
sketch10.addConstraint(Sketcher.Constraint("Coincident", 9, 2, 10, 1))
sketch10.addConstraint(Sketcher.Constraint("Coincident", 10, 2, 11, 1))
sketch10.addConstraint(Sketcher.Constraint("Coincident", 11, 2, 0, 1))
sketch10.addConstraint(Sketcher.Constraint("Horizontal", 0))
sketch10.addConstraint(Sketcher.Constraint("Vertical", 1))
sketch10.addConstraint(Sketcher.Constraint("Horizontal", 2))
sketch10.addConstraint(Sketcher.Constraint("Vertical", 3))
sketch10.addConstraint(Sketcher.Constraint("Horizontal", 4))
sketch10.addConstraint(Sketcher.Constraint("Vertical", 5))
sketch10.addConstraint(Sketcher.Constraint("Horizontal", 6))
sketch10.addConstraint(Sketcher.Constraint("Vertical", 7))
sketch10.addConstraint(Sketcher.Constraint("Horizontal", 8))
sketch10.addConstraint(Sketcher.Constraint("Vertical", 9))
sketch10.addConstraint(Sketcher.Constraint("Horizontal", 10))
sketch10.addConstraint(Sketcher.Constraint("Vertical", 11))
sketch10.addConstraint(Sketcher.Constraint("PointOnObject", 0, 2, -2))
sketch10.addConstraint(Sketcher.Constraint("PointOnObject", 9, 2, -1))
sketch10.addConstraint(Sketcher.Constraint("Horizontal", 2, 2, 5, 2))
sketch10.addConstraint(Sketcher.Constraint("Horizontal", 0, 2, 7, 2))
sketch10.addConstraint(Sketcher.Constraint("Vertical", 5, 2, 8, 2))
sketch10.addConstraint(Sketcher.Constraint("Vertical", 3, 2, 10, 2))
sketch10.addConstraint(Sketcher.Constraint("Equal", 2, 6))
sketch10.addConstraint(Sketcher.Constraint("Equal", 5, 9))
sketch10.addConstraint(Sketcher.Constraint("DistanceX", 0, 1, 0, 2, Q("45 mm")))
sketch10.addConstraint(Sketcher.Constraint("DistanceX", 4, 2, 4, 1, Q("510 mm")))
sketch10.addConstraint(Sketcher.Constraint("DistanceY", 1, 1, 1, 2, Q("1020 mm")))
sketch10.addConstraint(Sketcher.Constraint("DistanceY", 3, 1, 3, 2, Q("90 mm")))
pad5 = doc.addObject("PartDesign::Pad", "Pad004")
body3.addObject(pad5)
pad5.Profile = sketch10
pad5.Length = 20

sketch11 = doc.addObject("Sketcher::SketchObject", "Sketch010")
body3.addObject(sketch11)
sketch11.AttachmentSupport = (doc.getObject("XY_Plane002"), [""])
sketch11.MapMode = "FlatFace"
sketch11.AttachmentOffset = App.Placement(Vector(0, 0, 515), App.Rotation())
sketch11.addGeometry(Part.LineSegment(Vector(-390, 135, 0), Vector(-390, 0, 0)), False)
sketch11.addGeometry(Part.LineSegment(Vector(-390, 0, 0), Vector(-210, 0, 0)), False)
sketch11.addGeometry(Part.LineSegment(Vector(-210, 0, 0), Vector(-210, 135, 0)), False)
sketch11.addGeometry(Part.LineSegment(Vector(-210, 135, 0), Vector(-390, 135, 0)), False)
sketch11.addGeometry(Part.LineSegment(Vector(-255, 45, 0), Vector(-345, 45, 0)), False)
sketch11.addGeometry(Part.LineSegment(Vector(-345, 45, 0), Vector(-345, 90, 0)), False)
sketch11.addGeometry(Part.LineSegment(Vector(-345, 90, 0), Vector(-255, 90, 0)), False)
sketch11.addGeometry(Part.LineSegment(Vector(-255, 90, 0), Vector(-255, 45, 0)), False)
sketch11.addGeometry(Part.LineSegment(Vector(-390, 1200, 0), Vector(-390, 1065, 0)), False)
sketch11.addGeometry(Part.LineSegment(Vector(-390, 1065, 0), Vector(-210, 1065, 0)), False)
sketch11.addGeometry(Part.LineSegment(Vector(-210, 1065, 0), Vector(-210, 1200, 0)), False)
sketch11.addGeometry(Part.LineSegment(Vector(-210, 1200, 0), Vector(-390, 1200, 0)), False)
sketch11.addGeometry(Part.LineSegment(Vector(-255, 1110, 0), Vector(-345, 1110, 0)), False)
sketch11.addGeometry(Part.LineSegment(Vector(-345, 1110, 0), Vector(-345, 1155, 0)), False)
sketch11.addGeometry(Part.LineSegment(Vector(-345, 1155, 0), Vector(-255, 1155, 0)), False)
sketch11.addGeometry(Part.LineSegment(Vector(-255, 1155, 0), Vector(-255, 1110, 0)), False)
sketch11.addConstraint(Sketcher.Constraint("Coincident", 0, 2, 1, 1))
sketch11.addConstraint(Sketcher.Constraint("Coincident", 1, 2, 2, 1))
sketch11.addConstraint(Sketcher.Constraint("Coincident", 2, 2, 3, 1))
sketch11.addConstraint(Sketcher.Constraint("Coincident", 3, 2, 0, 1))
sketch11.addConstraint(Sketcher.Constraint("Coincident", 4, 2, 5, 1))
sketch11.addConstraint(Sketcher.Constraint("Coincident", 5, 2, 6, 1))
sketch11.addConstraint(Sketcher.Constraint("Coincident", 6, 2, 7, 1))
sketch11.addConstraint(Sketcher.Constraint("Coincident", 7, 2, 4, 1))
sketch11.addConstraint(Sketcher.Constraint("Coincident", 8, 2, 9, 1))
sketch11.addConstraint(Sketcher.Constraint("Coincident", 9, 2, 10, 1))
sketch11.addConstraint(Sketcher.Constraint("Coincident", 10, 2, 11, 1))
sketch11.addConstraint(Sketcher.Constraint("Coincident", 11, 2, 8, 1))
sketch11.addConstraint(Sketcher.Constraint("Coincident", 12, 2, 13, 1))
sketch11.addConstraint(Sketcher.Constraint("Coincident", 13, 2, 14, 1))
sketch11.addConstraint(Sketcher.Constraint("Coincident", 14, 2, 15, 1))
sketch11.addConstraint(Sketcher.Constraint("Coincident", 15, 2, 12, 1))
sketch11.addConstraint(Sketcher.Constraint("Vertical", 0))
sketch11.addConstraint(Sketcher.Constraint("Horizontal", 1))
sketch11.addConstraint(Sketcher.Constraint("Vertical", 2))
sketch11.addConstraint(Sketcher.Constraint("Horizontal", 3))
sketch11.addConstraint(Sketcher.Constraint("Horizontal", 4))
sketch11.addConstraint(Sketcher.Constraint("Vertical", 5))
sketch11.addConstraint(Sketcher.Constraint("Horizontal", 6))
sketch11.addConstraint(Sketcher.Constraint("Vertical", 7))
sketch11.addConstraint(Sketcher.Constraint("Vertical", 8))
sketch11.addConstraint(Sketcher.Constraint("Horizontal", 9))
sketch11.addConstraint(Sketcher.Constraint("Vertical", 10))
sketch11.addConstraint(Sketcher.Constraint("Horizontal", 11))
sketch11.addConstraint(Sketcher.Constraint("Horizontal", 12))
sketch11.addConstraint(Sketcher.Constraint("Vertical", 13))
sketch11.addConstraint(Sketcher.Constraint("Horizontal", 14))
sketch11.addConstraint(Sketcher.Constraint("Vertical", 15))
sketch11.addConstraint(Sketcher.Constraint("PointOnObject", 0, 2, -1))
sketch11.addConstraint(Sketcher.Constraint("Vertical", 3, 2, 8, 2))
sketch11.addConstraint(Sketcher.Constraint("Vertical", 2, 2, 9, 2))
sketch11.addConstraint(Sketcher.Constraint("Vertical", 5, 2, 12, 2))
sketch11.addConstraint(Sketcher.Constraint("Vertical", 7, 2, 14, 2))
sketch11.addConstraint(Sketcher.Constraint("Equal", 2, 8))
sketch11.addConstraint(Sketcher.Constraint("Equal", 7, 13))
sketch11.addConstraint(Sketcher.Constraint("DistanceX", 1, 1, 1, 2, Q("180 mm")))
sketch11.addConstraint(Sketcher.Constraint("DistanceX", 4, 2, 4, 1, Q("90 mm")))
sketch11.addConstraint(Sketcher.Constraint("DistanceY", 0, 2, 0, 1, Q("135 mm")))
sketch11.addConstraint(Sketcher.Constraint("DistanceY", 5, 1, 5, 2, Q("45 mm")))
sketch11.addConstraint(Sketcher.Constraint("DistanceX", 0, 2, -1, 1, Q("390 mm")))
sketch11.addConstraint(Sketcher.Constraint("DistanceX", 4, 2, -1, 1, Q("345 mm")))
sketch11.addConstraint(Sketcher.Constraint("DistanceY", -1, 1, 4, 2, Q("45 mm")))
sketch11.addConstraint(Sketcher.Constraint("DistanceY", -1, 1, 8, 2, Q("1065 mm")))
sketch11.addConstraint(Sketcher.Constraint("DistanceY", -1, 1, 12, 2, Q("1110 mm")))
pad6 = doc.addObject("PartDesign::Pad", "Pad005")
body3.addObject(pad6)
pad6.Profile = sketch11
pad6.Length = 90
body4 = doc.addObject("PartDesign::Body", "Body003")

sketch12 = doc.addObject("Sketcher::SketchObject", "Sketch011")
body4.addObject(sketch12)
sketch12.AttachmentSupport = (doc.getObject("XY_Plane003"), [""])
sketch12.MapMode = "FlatFace"
sketch12.AttachmentOffset = App.Placement(Vector(0, 0, 90), App.Rotation())
sketch12.addGeometry(Part.LineSegment(Vector(-45, 90, 0), Vector(0, 90, 0)), False)
sketch12.addGeometry(Part.LineSegment(Vector(0, 90, 0), Vector(0, 1110, 0)), False)
sketch12.addGeometry(Part.LineSegment(Vector(0, 1110, 0), Vector(-45, 1110, 0)), False)
sketch12.addGeometry(Part.LineSegment(Vector(-45, 1110, 0), Vector(-45, 1200, 0)), False)
sketch12.addGeometry(Part.LineSegment(Vector(-45, 1200, 0), Vector(-555, 1200, 0)), False)
sketch12.addGeometry(Part.LineSegment(Vector(-555, 1200, 0), Vector(-555, 1110, 0)), False)
sketch12.addGeometry(Part.LineSegment(Vector(-555, 1110, 0), Vector(-600, 1110, 0)), False)
sketch12.addGeometry(Part.LineSegment(Vector(-600, 1110, 0), Vector(-600, 90, 0)), False)
sketch12.addGeometry(Part.LineSegment(Vector(-600, 90, 0), Vector(-555, 90, 0)), False)
sketch12.addGeometry(Part.LineSegment(Vector(-555, 90, 0), Vector(-555, 0, 0)), False)
sketch12.addGeometry(Part.LineSegment(Vector(-555, 0, 0), Vector(-45, 0, 0)), False)
sketch12.addGeometry(Part.LineSegment(Vector(-45, 0, 0), Vector(-45, 90, 0)), False)
sketch12.addConstraint(Sketcher.Constraint("Coincident", 0, 2, 1, 1))
sketch12.addConstraint(Sketcher.Constraint("Coincident", 1, 2, 2, 1))
sketch12.addConstraint(Sketcher.Constraint("Coincident", 2, 2, 3, 1))
sketch12.addConstraint(Sketcher.Constraint("Coincident", 3, 2, 4, 1))
sketch12.addConstraint(Sketcher.Constraint("Coincident", 4, 2, 5, 1))
sketch12.addConstraint(Sketcher.Constraint("Coincident", 5, 2, 6, 1))
sketch12.addConstraint(Sketcher.Constraint("Coincident", 6, 2, 7, 1))
sketch12.addConstraint(Sketcher.Constraint("Coincident", 7, 2, 8, 1))
sketch12.addConstraint(Sketcher.Constraint("Coincident", 8, 2, 9, 1))
sketch12.addConstraint(Sketcher.Constraint("Coincident", 9, 2, 10, 1))
sketch12.addConstraint(Sketcher.Constraint("Coincident", 10, 2, 11, 1))
sketch12.addConstraint(Sketcher.Constraint("Coincident", 11, 2, 0, 1))
sketch12.addConstraint(Sketcher.Constraint("Horizontal", 0))
sketch12.addConstraint(Sketcher.Constraint("Vertical", 1))
sketch12.addConstraint(Sketcher.Constraint("Horizontal", 2))
sketch12.addConstraint(Sketcher.Constraint("Vertical", 3))
sketch12.addConstraint(Sketcher.Constraint("Horizontal", 4))
sketch12.addConstraint(Sketcher.Constraint("Vertical", 5))
sketch12.addConstraint(Sketcher.Constraint("Horizontal", 6))
sketch12.addConstraint(Sketcher.Constraint("Vertical", 7))
sketch12.addConstraint(Sketcher.Constraint("Horizontal", 8))
sketch12.addConstraint(Sketcher.Constraint("Vertical", 9))
sketch12.addConstraint(Sketcher.Constraint("Horizontal", 10))
sketch12.addConstraint(Sketcher.Constraint("Vertical", 11))
sketch12.addConstraint(Sketcher.Constraint("PointOnObject", 0, 2, -2))
sketch12.addConstraint(Sketcher.Constraint("PointOnObject", 9, 2, -1))
sketch12.addConstraint(Sketcher.Constraint("Horizontal", 2, 2, 5, 2))
sketch12.addConstraint(Sketcher.Constraint("Horizontal", 0, 2, 7, 2))
sketch12.addConstraint(Sketcher.Constraint("Vertical", 5, 2, 8, 2))
sketch12.addConstraint(Sketcher.Constraint("Vertical", 3, 2, 10, 2))
sketch12.addConstraint(Sketcher.Constraint("Equal", 2, 6))
sketch12.addConstraint(Sketcher.Constraint("Equal", 5, 9))
sketch12.addConstraint(Sketcher.Constraint("DistanceX", 0, 1, 0, 2, Q("45 mm")))
sketch12.addConstraint(Sketcher.Constraint("DistanceX", 4, 2, 4, 1, Q("510 mm")))
sketch12.addConstraint(Sketcher.Constraint("DistanceY", 1, 1, 1, 2, Q("1020 mm")))
sketch12.addConstraint(Sketcher.Constraint("DistanceY", 3, 1, 3, 2, Q("90 mm")))
pad7 = doc.addObject("PartDesign::Pad", "Pad006")
body4.addObject(pad7)
pad7.Profile = sketch12
pad7.Length = 20

doc.recompute()
